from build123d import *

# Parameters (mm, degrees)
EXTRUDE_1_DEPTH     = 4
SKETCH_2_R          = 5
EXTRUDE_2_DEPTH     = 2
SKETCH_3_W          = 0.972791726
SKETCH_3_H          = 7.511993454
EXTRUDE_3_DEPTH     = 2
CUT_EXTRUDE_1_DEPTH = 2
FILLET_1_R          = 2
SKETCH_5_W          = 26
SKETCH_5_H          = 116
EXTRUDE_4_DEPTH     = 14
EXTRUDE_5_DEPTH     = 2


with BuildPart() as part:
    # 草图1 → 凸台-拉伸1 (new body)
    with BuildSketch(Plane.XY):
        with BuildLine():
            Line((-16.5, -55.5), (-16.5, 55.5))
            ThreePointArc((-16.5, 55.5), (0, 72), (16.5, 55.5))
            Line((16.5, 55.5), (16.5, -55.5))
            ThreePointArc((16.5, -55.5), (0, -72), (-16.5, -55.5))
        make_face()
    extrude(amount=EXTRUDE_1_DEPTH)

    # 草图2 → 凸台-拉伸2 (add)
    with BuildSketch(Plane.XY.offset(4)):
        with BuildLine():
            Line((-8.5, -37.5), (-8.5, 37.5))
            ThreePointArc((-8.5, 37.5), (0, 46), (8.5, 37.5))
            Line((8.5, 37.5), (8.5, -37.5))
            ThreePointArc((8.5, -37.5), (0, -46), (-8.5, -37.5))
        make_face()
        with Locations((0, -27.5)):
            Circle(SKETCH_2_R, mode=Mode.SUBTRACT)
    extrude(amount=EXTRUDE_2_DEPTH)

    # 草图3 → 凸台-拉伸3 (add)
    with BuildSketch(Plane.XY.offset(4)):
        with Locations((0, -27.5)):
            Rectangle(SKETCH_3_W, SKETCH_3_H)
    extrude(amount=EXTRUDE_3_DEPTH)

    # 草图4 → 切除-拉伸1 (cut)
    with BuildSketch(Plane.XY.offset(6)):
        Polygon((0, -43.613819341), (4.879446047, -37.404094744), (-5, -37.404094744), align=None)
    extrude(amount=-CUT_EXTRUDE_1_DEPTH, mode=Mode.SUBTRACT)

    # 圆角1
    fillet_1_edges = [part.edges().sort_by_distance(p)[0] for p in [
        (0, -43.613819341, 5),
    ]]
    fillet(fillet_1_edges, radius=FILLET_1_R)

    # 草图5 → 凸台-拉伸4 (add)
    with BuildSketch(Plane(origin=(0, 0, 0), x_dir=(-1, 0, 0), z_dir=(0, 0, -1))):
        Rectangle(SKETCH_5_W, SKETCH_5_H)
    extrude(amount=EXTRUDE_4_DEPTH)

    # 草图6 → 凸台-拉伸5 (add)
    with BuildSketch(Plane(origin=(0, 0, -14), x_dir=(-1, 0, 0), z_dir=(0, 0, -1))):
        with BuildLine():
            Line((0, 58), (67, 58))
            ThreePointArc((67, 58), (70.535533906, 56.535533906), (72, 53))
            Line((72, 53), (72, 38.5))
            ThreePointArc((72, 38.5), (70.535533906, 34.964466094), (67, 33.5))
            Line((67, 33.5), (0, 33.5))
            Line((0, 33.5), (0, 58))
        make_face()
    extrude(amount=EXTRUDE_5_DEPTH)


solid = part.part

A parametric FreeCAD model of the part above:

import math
import FreeCAD as App
import Part
import Sketcher
Q = App.Units.Quantity


def edges_at(feature, points):
    """Names of the edges that pass closest to the given points."""
    edges = feature.Shape.Edges
    near = lambda p: min(range(len(edges)), key=lambda i: edges[i].distToShape(Part.Vertex(*p))[0])
    return sorted({f"Edge{near(p) + 1}" for p in points})

doc = App.newDocument("Part")
params = doc.addObject("Spreadsheet::Sheet", "Params")
for row, (alias, value) in enumerate([
    ("sketch1_radius", "16.5 mm"),
    ("sketch1_height", "111 mm"),
    ("pad1_length", "4 mm"),
    ("sketch2_diameter", "10 mm"),
    ("sketch2_radius", "8.5 mm"),
    ("sketch2_height", "75 mm"),
    ("pad2_length", "2 mm"),
    ("pad3_length", "2 mm"),
    ("pocket1_length", "2 mm"),
    ("fillet_radius", "2 mm"),
    ("sketch5_width", "26 mm"),
    ("sketch5_height", "116 mm"),
    ("pad4_length", "14 mm"),
    ("sketch6_radius", "5 mm"),
    ("sketch6_width", "67 mm"),
    ("sketch6_height", "24.5 mm"),
    ("pad5_length", "2 mm"),
], start=1):
    params.set(f"A{row}", alias)
    params.set(f"B{row}", "=" + value)
    params.setAlias(f"B{row}", alias)

body = doc.addObject("PartDesign::Body", "Body")

sketch1 = body.newObject("Sketcher::SketchObject", "Sketch")
sketch1.AttachmentSupport = (doc.getObject("XY_Plane"), [""])
sketch1.MapMode = "FlatFace"
sketch1.addGeometry([
    Part.LineSegment(App.Vector(-16, 56, 0), App.Vector(-16, -56, 0)),
    Part.ArcOfCircle(Part.Circle(App.Vector(0, -56, 0), App.Vector(0, 0, 1), 16), math.radians(180), math.radians(360)),
    Part.LineSegment(App.Vector(16, -56, 0), App.Vector(16, 56, 0)),
    Part.ArcOfCircle(Part.Circle(App.Vector(0, 56, 0), App.Vector(0, 0, 1), 16), math.radians(0), math.radians(180)),
], False)
sketch1.addConstraint([
    Sketcher.Constraint("Tangent", 0, 2, 1, 1),
    Sketcher.Constraint("Tangent", 1, 2, 2, 1),
    Sketcher.Constraint("Tangent", 2, 2, 3, 1),
    Sketcher.Constraint("Tangent", 3, 2, 0, 1),
    Sketcher.Constraint("Vertical", 0),
    Sketcher.Constraint("Vertical", 2),
    Sketcher.Constraint("Symmetric", 1, 3, 3, 3, -1, 1),
    Sketcher.Constraint("Radius", 1, Q("16.5 mm")),
    Sketcher.Constraint("DistanceY", 0, 2, 0, 1, Q("111 mm")),
])
sketch1.setExpression("Constraints[7]", "Params.sketch1_radius")
sketch1.setExpression("Constraints[8]", "Params.sketch1_height")
pad1 = body.newObject("PartDesign::Pad", "Pad")
pad1.Profile = sketch1
pad1.setExpression("Length", "Params.pad1_length")

sketch2 = body.newObject("Sketcher::SketchObject", "Sketch001")
sketch2.AttachmentSupport = (doc.getObject("XY_Plane"), [""])
sketch2.MapMode = "FlatFace"
sketch2.AttachmentOffset = App.Placement(App.Vector(0, 0, 4), App.Rotation())
sketch2.addGeometry([
    Part.LineSegment(App.Vector(-8, 38, 0), App.Vector(-8, -38, 0)),
    Part.ArcOfCircle(Part.Circle(App.Vector(0, -38, 0), App.Vector(0, 0, 1), 8), math.radians(180), math.radians(360)),
    Part.LineSegment(App.Vector(8, -38, 0), App.Vector(8, 38, 0)),
    Part.ArcOfCircle(Part.Circle(App.Vector(0, 38, 0), App.Vector(0, 0, 1), 8), math.radians(0), math.radians(180)),
    Part.Circle(App.Vector(0, -28, 0), App.Vector(0, 0, 1), 5),
], False)
sketch2.addConstraint([
    Sketcher.Constraint("Tangent", 0, 2, 1, 1),
    Sketcher.Constraint("Tangent", 1, 2, 2, 1),
    Sketcher.Constraint("Tangent", 2, 2, 3, 1),
    Sketcher.Constraint("Tangent", 3, 2, 0, 1),
    Sketcher.Constraint("Vertical", 0),
    Sketcher.Constraint("Vertical", 2),
    Sketcher.Constraint("Symmetric", 1, 3, 3, 3, -1, 1),
    Sketcher.Constraint("PointOnObject", 4, 3, -2),
    Sketcher.Constraint("Diameter", 4, Q("10 mm")),
    Sketcher.Constraint("Radius", 1, Q("8.5 mm")),
    Sketcher.Constraint("DistanceY", 0, 2, 0, 1, Q("75 mm")),
    Sketcher.Constraint("DistanceY", 1, 3, 4, 3, Q("10 mm")),
])
sketch2.setExpression("Constraints[8]", "Params.sketch2_diameter")
sketch2.setExpression("Constraints[9]", "Params.sketch2_radius")
sketch2.setExpression("Constraints[10]", "Params.sketch2_height")
pad2 = body.newObject("PartDesign::Pad", "Pad001")
pad2.Profile = sketch2
pad2.setExpression("Length", "Params.pad2_length")

sketch3 = body.newObject("Sketcher::SketchObject", "Sketch002")
sketch3.AttachmentSupport = (doc.getObject("XY_Plane"), [""])
sketch3.MapMode = "FlatFace"
sketch3.AttachmentOffset = App.Placement(App.Vector(0, 0, 4), App.Rotation())
sketch3.addGeometry([
    Part.LineSegment(App.Vector(-0.5, -23.7, 0), App.Vector(-0.5, -31.3, 0)),
    Part.LineSegment(App.Vector(-0.5, -31.3, 0), App.Vector(0.5, -31.3, 0)),
    Part.LineSegment(App.Vector(0.5, -31.3, 0), App.Vector(0.5, -23.7, 0)),
    Part.LineSegment(App.Vector(0.5, -23.7, 0), App.Vector(-0.5, -23.7, 0)),
], False)
sketch3.addConstraint([
    Sketcher.Constraint("Coincident", 0, 2, 1, 1),
    Sketcher.Constraint("Coincident", 1, 2, 2, 1),
    Sketcher.Constraint("Coincident", 2, 2, 3, 1),
    Sketcher.Constraint("Coincident", 3, 2, 0, 1),
    Sketcher.Constraint("Vertical", 0),
    Sketcher.Constraint("Horizontal", 1),
    Sketcher.Constraint("Vertical", 2),
    Sketcher.Constraint("Horizontal", 3),
    Sketcher.Constraint("DistanceX", 1, 1, 1, 2, Q("0.972792 mm")),
    Sketcher.Constraint("DistanceY", 0, 2, 0, 1, Q("7.511993 mm")),
    Sketcher.Constraint("DistanceX", 0, 2, -1, 1, Q("0.486396 mm")),
    Sketcher.Constraint("DistanceY", 0, 2, -1, 1, Q("31.255997 mm")),
])
pad3 = body.newObject("PartDesign::Pad", "Pad002")
pad3.Profile = sketch3
pad3.setExpression("Length", "Params.pad3_length")

sketch4 = body.newObject("Sketcher::SketchObject", "Sketch003")
sketch4.AttachmentSupport = (doc.getObject("XY_Plane"), [""])
sketch4.MapMode = "FlatFace"
sketch4.AttachmentOffset = App.Placement(App.Vector(0, 0, 6), App.Rotation())
sketch4.addGeometry([
    Part.LineSegment(App.Vector(0, -44, 0), App.Vector(5, -37, 0)),
    Part.LineSegment(App.Vector(5, -37, 0), App.Vector(-5, -37, 0)),
    Part.LineSegment(App.Vector(-5, -37, 0), App.Vector(0, -44, 0)),
], False)
sketch4.addConstraint([
    Sketcher.Constraint("Coincident", 0, 2, 1, 1),
    Sketcher.Constraint("Coincident", 1, 2, 2, 1),
    Sketcher.Constraint("Coincident", 2, 2, 0, 1),
    Sketcher.Constraint("Horizontal", 1),
    Sketcher.Constraint("PointOnObject", 2, 2, -2),
    Sketcher.Constraint("DistanceX", 1, 2, -1, 1, Q("5 mm")),
    Sketcher.Constraint("DistanceX", 1, 2, 1, 1, Q("9.879446 mm")),
    Sketcher.Constraint("DistanceY", 2, 2, -1, 1, Q("43.613819 mm")),
    Sketcher.Constraint("Distance", 0, Q("7.897447 mm")),
])
pocket1 = body.newObject("PartDesign::Pocket", "Pocket")
pocket1.Profile = sketch4
pocket1.setExpression("Length", "Params.pocket1_length")
doc.recompute()

fillet = body.newObject("PartDesign::Fillet", "Fillet")
fillet.Base = (pocket1, edges_at(pocket1, [(0, -43.614, 5)]))
fillet.setExpression("Radius", "Params.fillet_radius")

sketch5 = body.newObject("Sketcher::SketchObject", "Sketch004")
sketch5.AttachmentSupport = (doc.getObject("XY_Plane"), [""])
sketch5.MapMode = "FlatFace"
sketch5.addGeometry([
    Part.LineSegment(App.Vector(13, 58, 0), App.Vector(13, -58, 0)),
    Part.LineSegment(App.Vector(13, -58, 0), App.Vector(-13, -58, 0)),
    Part.LineSegment(App.Vector(-13, -58, 0), App.Vector(-13, 58, 0)),
    Part.LineSegment(App.Vector(-13, 58, 0), App.Vector(13, 58, 0)),
], False)
sketch5.addConstraint([
    Sketcher.Constraint("Coincident", 0, 2, 1, 1),
    Sketcher.Constraint("Coincident", 1, 2, 2, 1),
    Sketcher.Constraint("Coincident", 2, 2, 3, 1),
    Sketcher.Constraint("Coincident", 3, 2, 0, 1),
    Sketcher.Constraint("Vertical", 0),
    Sketcher.Constraint("Horizontal", 1),
    Sketcher.Constraint("Vertical", 2),
    Sketcher.Constraint("Horizontal", 3),
    Sketcher.Constraint("Symmetric", 0, 2, 2, 2, -1, 1),
    Sketcher.Constraint("DistanceX", 1, 2, 1, 1, Q("26 mm")),
    Sketcher.Constraint("DistanceY", 0, 2, 0, 1, Q("116 mm")),
])
sketch5.setExpression("Constraints[9]", "Params.sketch5_width")
sketch5.setExpression("Constraints[10]", "Params.sketch5_height")
pad4 = body.newObject("PartDesign::Pad", "Pad003")
pad4.Profile = sketch5
pad4.setExpression("Length", "Params.pad4_length")
pad4.Reversed = True

sketch6 = body.newObject("Sketcher::SketchObject", "Sketch005")
sketch6.AttachmentSupport = (doc.getObject("XY_Plane"), [""])
sketch6.MapMode = "FlatFace"
sketch6.AttachmentOffset = App.Placement(App.Vector(0, 0, -14), App.Rotation())
sketch6.addGeometry([
    Part.LineSegment(App.Vector(-67, 58, 0), App.Vector(0, 58, 0)),
    Part.LineSegment(App.Vector(0, 58, 0), App.Vector(0, 34, 0)),
    Part.LineSegment(App.Vector(0, 34, 0), App.Vector(-67, 34, 0)),
    Part.ArcOfCircle(Part.Circle(App.Vector(-67, 38, 0), App.Vector(0, 0, 1), 5), math.radians(180), math.radians(270)),
    Part.LineSegment(App.Vector(-72, 38, 0), App.Vector(-72, 53, 0)),
    Part.ArcOfCircle(Part.Circle(App.Vector(-67, 53, 0), App.Vector(0, 0, 1), 5), math.radians(90), math.radians(180)),
], False)
sketch6.addConstraint([
    Sketcher.Constraint("Coincident", 0, 2, 1, 1),
    Sketcher.Constraint("Coincident", 1, 2, 2, 1),
    Sketcher.Constraint("Tangent", 2, 2, 3, 2),
    Sketcher.Constraint("Tangent", 3, 1, 4, 1),
    Sketcher.Constraint("Tangent", 4, 2, 5, 2),
    Sketcher.Constraint("Tangent", 5, 1, 0, 1),
    Sketcher.Constraint("Horizontal", 0),
    Sketcher.Constraint("Vertical", 1),
    Sketcher.Constraint("Horizontal", 2),
    Sketcher.Constraint("Vertical", 4),
    Sketcher.Constraint("Equal", 3, 5),
    Sketcher.Constraint("PointOnObject", 0, 2, -2),
    Sketcher.Constraint("Radius", 3, Q("5 mm")),
    Sketcher.Constraint("DistanceX", 0, 1, 0, 2, Q("67 mm")),
    Sketcher.Constraint("DistanceY", 1, 2, 1, 1, Q("24.5 mm")),
    Sketcher.Constraint("DistanceY", -1, 1, 5, 3, Q("53 mm")),
])
sketch6.setExpression("Constraints[12]", "Params.sketch6_radius")
sketch6.setExpression("Constraints[13]", "Params.sketch6_width")
sketch6.setExpression("Constraints[14]", "Params.sketch6_height")
pad5 = body.newObject("PartDesign::Pad", "Pad004")
pad5.Profile = sketch6
pad5.setExpression("Length", "Params.pad5_length")
pad5.Reversed = True

doc.recompute()
